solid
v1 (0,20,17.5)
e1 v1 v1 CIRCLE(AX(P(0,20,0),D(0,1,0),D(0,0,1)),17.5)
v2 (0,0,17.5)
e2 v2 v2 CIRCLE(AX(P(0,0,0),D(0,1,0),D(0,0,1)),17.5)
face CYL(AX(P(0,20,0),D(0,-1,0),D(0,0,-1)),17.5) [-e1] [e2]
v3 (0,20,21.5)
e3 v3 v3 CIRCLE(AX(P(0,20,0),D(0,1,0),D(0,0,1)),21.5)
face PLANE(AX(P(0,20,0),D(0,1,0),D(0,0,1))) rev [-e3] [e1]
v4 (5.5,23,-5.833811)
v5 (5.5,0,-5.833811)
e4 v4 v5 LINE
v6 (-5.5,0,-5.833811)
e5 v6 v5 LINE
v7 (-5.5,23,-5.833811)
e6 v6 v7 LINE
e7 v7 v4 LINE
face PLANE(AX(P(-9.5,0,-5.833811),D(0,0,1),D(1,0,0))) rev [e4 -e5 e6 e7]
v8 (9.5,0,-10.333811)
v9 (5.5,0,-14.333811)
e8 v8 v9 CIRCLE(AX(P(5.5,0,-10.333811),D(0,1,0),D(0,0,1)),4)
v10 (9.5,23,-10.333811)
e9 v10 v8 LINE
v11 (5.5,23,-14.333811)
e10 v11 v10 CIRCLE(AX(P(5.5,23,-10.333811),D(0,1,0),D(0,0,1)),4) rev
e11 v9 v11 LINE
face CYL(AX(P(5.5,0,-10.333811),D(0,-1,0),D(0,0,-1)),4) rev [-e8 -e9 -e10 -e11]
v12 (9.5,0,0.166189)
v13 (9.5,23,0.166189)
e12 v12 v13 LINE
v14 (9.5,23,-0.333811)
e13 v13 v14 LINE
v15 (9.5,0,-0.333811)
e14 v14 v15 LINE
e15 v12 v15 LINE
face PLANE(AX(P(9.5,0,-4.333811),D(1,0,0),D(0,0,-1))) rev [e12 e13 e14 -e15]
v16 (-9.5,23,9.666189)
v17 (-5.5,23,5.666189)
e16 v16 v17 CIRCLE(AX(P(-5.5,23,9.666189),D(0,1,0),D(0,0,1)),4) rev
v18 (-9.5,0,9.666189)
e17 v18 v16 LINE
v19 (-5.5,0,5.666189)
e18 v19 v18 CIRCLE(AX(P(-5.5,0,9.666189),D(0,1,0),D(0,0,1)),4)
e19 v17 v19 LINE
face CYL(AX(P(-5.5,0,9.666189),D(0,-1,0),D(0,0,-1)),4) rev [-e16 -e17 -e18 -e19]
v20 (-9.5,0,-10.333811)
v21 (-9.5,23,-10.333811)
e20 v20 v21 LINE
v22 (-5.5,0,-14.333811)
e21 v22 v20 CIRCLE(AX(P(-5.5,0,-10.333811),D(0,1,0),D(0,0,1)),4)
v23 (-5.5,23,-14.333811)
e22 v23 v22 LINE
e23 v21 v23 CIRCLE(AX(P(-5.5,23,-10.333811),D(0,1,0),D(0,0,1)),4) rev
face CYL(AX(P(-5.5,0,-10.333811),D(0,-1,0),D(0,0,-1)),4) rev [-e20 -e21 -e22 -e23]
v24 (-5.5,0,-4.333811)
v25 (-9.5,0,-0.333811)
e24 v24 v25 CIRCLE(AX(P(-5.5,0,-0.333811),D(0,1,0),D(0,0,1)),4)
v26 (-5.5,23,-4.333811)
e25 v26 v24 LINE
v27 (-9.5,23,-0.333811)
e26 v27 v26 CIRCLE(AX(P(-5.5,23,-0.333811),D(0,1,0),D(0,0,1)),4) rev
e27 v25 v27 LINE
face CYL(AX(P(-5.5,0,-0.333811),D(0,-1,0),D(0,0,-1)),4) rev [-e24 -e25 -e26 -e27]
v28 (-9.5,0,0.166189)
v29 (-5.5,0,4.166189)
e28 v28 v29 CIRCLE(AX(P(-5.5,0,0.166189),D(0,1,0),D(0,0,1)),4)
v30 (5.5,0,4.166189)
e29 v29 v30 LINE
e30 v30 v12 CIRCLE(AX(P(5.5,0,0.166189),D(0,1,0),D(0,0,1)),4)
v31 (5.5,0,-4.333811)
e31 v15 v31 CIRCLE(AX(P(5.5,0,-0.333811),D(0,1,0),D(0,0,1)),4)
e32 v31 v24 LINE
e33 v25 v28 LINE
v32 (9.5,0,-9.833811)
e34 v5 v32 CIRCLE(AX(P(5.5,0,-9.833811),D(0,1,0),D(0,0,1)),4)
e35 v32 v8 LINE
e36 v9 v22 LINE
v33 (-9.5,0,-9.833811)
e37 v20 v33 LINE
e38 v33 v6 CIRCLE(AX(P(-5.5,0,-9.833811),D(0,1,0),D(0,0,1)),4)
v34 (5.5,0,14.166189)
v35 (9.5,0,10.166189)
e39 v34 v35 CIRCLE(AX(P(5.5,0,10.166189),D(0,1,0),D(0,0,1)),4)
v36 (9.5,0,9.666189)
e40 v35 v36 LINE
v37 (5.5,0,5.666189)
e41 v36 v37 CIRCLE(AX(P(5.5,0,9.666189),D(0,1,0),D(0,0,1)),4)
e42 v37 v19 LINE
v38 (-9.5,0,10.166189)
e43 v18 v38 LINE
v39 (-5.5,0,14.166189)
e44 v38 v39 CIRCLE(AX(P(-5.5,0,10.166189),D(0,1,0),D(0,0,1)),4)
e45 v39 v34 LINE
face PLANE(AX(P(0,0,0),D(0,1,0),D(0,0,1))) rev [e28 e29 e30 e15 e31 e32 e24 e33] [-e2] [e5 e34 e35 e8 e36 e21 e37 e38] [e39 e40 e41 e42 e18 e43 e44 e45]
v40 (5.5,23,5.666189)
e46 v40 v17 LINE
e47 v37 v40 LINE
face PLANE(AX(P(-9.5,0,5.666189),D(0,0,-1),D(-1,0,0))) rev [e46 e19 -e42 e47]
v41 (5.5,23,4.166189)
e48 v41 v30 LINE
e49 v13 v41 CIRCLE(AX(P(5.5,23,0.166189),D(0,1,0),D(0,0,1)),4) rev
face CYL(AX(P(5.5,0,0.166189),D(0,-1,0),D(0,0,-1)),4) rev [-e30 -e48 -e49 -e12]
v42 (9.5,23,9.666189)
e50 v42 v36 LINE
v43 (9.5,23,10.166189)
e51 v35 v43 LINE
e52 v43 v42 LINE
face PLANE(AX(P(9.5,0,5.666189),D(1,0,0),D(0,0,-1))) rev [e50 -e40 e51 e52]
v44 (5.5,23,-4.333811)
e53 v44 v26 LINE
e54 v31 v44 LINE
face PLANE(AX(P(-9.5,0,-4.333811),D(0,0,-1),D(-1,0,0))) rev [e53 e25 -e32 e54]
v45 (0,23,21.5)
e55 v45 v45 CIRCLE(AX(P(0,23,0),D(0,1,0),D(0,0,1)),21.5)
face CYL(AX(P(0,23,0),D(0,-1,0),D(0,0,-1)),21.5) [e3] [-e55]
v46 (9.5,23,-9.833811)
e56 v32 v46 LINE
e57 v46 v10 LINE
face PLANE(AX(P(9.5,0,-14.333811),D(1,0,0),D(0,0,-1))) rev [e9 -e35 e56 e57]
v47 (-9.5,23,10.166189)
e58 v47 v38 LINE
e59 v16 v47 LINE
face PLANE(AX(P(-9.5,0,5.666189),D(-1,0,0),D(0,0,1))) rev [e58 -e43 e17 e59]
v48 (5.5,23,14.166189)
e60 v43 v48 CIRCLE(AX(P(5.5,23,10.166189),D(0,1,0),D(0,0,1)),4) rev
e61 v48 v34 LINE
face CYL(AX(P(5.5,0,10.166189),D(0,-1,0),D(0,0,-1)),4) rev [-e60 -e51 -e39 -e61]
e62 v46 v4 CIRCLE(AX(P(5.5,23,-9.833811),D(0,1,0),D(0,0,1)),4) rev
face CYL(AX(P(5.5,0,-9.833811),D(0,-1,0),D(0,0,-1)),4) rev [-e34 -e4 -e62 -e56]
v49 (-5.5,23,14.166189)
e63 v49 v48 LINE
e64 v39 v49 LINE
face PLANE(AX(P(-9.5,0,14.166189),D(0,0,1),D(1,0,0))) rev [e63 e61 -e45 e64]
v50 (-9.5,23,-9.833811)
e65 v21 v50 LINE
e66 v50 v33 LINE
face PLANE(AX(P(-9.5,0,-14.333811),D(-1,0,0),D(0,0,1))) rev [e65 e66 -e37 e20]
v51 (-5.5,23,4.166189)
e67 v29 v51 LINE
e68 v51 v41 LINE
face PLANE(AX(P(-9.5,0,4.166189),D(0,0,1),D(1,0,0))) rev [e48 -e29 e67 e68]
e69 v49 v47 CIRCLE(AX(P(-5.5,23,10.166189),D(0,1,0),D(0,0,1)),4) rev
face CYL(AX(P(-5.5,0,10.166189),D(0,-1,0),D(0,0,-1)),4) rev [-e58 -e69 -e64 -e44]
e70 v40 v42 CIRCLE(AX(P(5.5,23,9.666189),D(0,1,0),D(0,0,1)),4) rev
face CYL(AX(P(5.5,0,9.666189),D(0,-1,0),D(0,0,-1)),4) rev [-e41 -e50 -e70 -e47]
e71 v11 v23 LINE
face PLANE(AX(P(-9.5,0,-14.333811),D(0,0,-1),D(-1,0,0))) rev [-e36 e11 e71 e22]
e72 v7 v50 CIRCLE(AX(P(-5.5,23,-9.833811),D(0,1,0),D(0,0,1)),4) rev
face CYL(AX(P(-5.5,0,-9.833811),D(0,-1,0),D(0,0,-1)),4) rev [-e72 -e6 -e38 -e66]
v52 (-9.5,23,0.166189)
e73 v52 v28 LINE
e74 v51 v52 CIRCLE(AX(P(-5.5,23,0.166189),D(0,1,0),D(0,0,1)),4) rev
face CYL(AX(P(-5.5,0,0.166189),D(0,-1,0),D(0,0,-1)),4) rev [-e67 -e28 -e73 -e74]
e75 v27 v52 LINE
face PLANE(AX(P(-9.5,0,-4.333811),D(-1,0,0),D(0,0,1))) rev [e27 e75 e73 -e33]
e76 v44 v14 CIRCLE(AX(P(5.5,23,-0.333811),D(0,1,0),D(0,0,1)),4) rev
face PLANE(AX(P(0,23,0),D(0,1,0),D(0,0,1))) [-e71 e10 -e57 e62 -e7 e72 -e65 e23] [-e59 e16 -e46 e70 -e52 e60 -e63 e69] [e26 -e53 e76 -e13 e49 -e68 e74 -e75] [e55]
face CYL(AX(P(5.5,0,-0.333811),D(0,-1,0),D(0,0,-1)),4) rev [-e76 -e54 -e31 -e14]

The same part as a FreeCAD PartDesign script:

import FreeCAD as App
import Part
import Sketcher
from FreeCAD import Vector
Q = App.Units.Quantity


def edges_at(feature, points):
    """Names of the edges that pass closest to the given points."""
    edges = feature.Shape.Edges
    near = lambda p: min(range(len(edges)), key=lambda i: edges[i].distToShape(Part.Vertex(*p))[0])
    return sorted({f"Edge{near(p) + 1}" for p in points})

doc = App.newDocument("Part")
body = doc.addObject("PartDesign::Body", "Body")

sketch1 = body.newObject("Sketcher::SketchObject", "Sketch")
sketch1.AttachmentSupport = (doc.getObject("XZ_Plane"), [""])
sketch1.MapMode = "FlatFace"
sketch1.addGeometry(Part.Circle(Vector(0, 0, 0), Vector(0, 0, 1), 18), False)
sketch1.addConstraint([
    Sketcher.Constraint("Coincident", 0, 3, -1, 1),
    Sketcher.Constraint("Diameter", 0, Q("35 mm")),
])
pad1 = body.newObject("PartDesign::Pad", "Pad")
pad1.Profile = sketch1
pad1.Length = 20
pad1.Reversed = True

sketch2 = body.newObject("Sketcher::SketchObject", "Sketch001")
sketch2.AttachmentSupport = (doc.getObject("XZ_Plane"), [""])
sketch2.MapMode = "FlatFace"
sketch2.AttachmentOffset = App.Placement(Vector(0, 0, -20), App.Rotation())
sketch2.addGeometry(Part.Circle(Vector(0, 0, 0), Vector(0, 0, 1), 22), False)
sketch2.addConstraint([
    Sketcher.Constraint("Coincident", 0, 3, -1, 1),
    Sketcher.Constraint("Diameter", 0, Q("43 mm")),
])
pad2 = body.newObject("PartDesign::Pad", "Pad001")
pad2.Profile = sketch2
pad2.Length = 3
pad2.Reversed = True

sketch3 = body.newObject("Sketcher::SketchObject", "Sketch002")
sketch3.AttachmentSupport = (doc.getObject("XZ_Plane"), [""])
sketch3.MapMode = "FlatFace"
sketch3.AttachmentOffset = App.Placement(Vector(0, 0, -23), App.Rotation())
sketch3.addGeometry([
    Part.LineSegment(Vector(-10, -4, 0), Vector(-10, 4, 0)),
    Part.LineSegment(Vector(-10, 4, 0), Vector(10, 4, 0)),
    Part.LineSegment(Vector(10, 4, 0), Vector(10, -4, 0)),
    Part.LineSegment(Vector(10, -4, 0), Vector(-10, -4, 0)),
    Part.LineSegment(Vector(-10, -14, 0), Vector(-10, -6, 0)),
    Part.LineSegment(Vector(-10, -6, 0), Vector(10, -6, 0)),
    Part.LineSegment(Vector(10, -6, 0), Vector(10, -14, 0)),
    Part.LineSegment(Vector(10, -14, 0), Vector(-10, -14, 0)),
    Part.LineSegment(Vector(-10, 6, 0), Vector(-10, 14, 0)),
    Part.LineSegment(Vector(-10, 14, 0), Vector(10, 14, 0)),
    Part.LineSegment(Vector(10, 14, 0), Vector(10, 6, 0)),
    Part.LineSegment(Vector(10, 6, 0), Vector(-10, 6, 0)),
], False)
sketch3.addConstraint([
    Sketcher.Constraint("Coincident", 0, 2, 1, 1),
    Sketcher.Constraint("Coincident", 1, 2, 2, 1),
    Sketcher.Constraint("Coincident", 2, 2, 3, 1),
    Sketcher.Constraint("Coincident", 3, 2, 0, 1),
    Sketcher.Constraint("Coincident", 4, 2, 5, 1),
    Sketcher.Constraint("Coincident", 5, 2, 6, 1),
    Sketcher.Constraint("Coincident", 6, 2, 7, 1),
    Sketcher.Constraint("Coincident", 7, 2, 4, 1),
    Sketcher.Constraint("Coincident", 8, 2, 9, 1),
    Sketcher.Constraint("Coincident", 9, 2, 10, 1),
    Sketcher.Constraint("Coincident", 10, 2, 11, 1),
    Sketcher.Constraint("Coincident", 11, 2, 8, 1),
    Sketcher.Constraint("Vertical", 0),
    Sketcher.Constraint("Horizontal", 1),
    Sketcher.Constraint("Vertical", 2),
    Sketcher.Constraint("Horizontal", 3),
    Sketcher.Constraint("Vertical", 4),
    Sketcher.Constraint("Horizontal", 5),
    Sketcher.Constraint("Vertical", 6),
    Sketcher.Constraint("Horizontal", 7),
    Sketcher.Constraint("Vertical", 8),
    Sketcher.Constraint("Horizontal", 9),
    Sketcher.Constraint("Vertical", 10),
    Sketcher.Constraint("Horizontal", 11),
    Sketcher.Constraint("Vertical", 3, 2, 4, 2),
    Sketcher.Constraint("Vertical", 2, 2, 5, 2),
    Sketcher.Constraint("Vertical", 7, 2, 8, 2),
    Sketcher.Constraint("Vertical", 6, 2, 9, 2),
    Sketcher.Constraint("Equal", 2, 4),
    Sketcher.Constraint("Equal", 6, 8),
    Sketcher.Constraint("DistanceX", 1, 1, 1, 2, Q("19 mm")),
    Sketcher.Constraint("DistanceY", 0, 1, 0, 2, Q("8.5 mm")),
    Sketcher.Constraint("DistanceY", 4, 2, 0, 2, Q("10 mm")),
    Sketcher.Constraint("DistanceY", 0, 2, 8, 2, Q("10 mm")),
    Sketcher.Constraint("DistanceX", 0, 2, -1, 1, Q("9.5 mm")),
    Sketcher.Constraint("DistanceY", -1, 1, 0, 2, Q("4.166189 mm")),
])
pocket1 = body.newObject("PartDesign::Pocket", "Pocket")
pocket1.Profile = sketch3
pocket1.Length = 23
pocket1.Reversed = True
doc.recompute()

fillet = body.newObject("PartDesign::Fillet", "Fillet")
fillet.Base = (pocket1, edges_at(pocket1, [
    (9.5, 11.5, 4.166),
    (-9.5, 11.5, 4.166),
    (-9.5, 11.5, -4.334),
    (9.5, 11.5, -4.334),
    (9.5, 11.5, 14.166),
    (-9.5, 11.5, 14.166),
    (-9.5, 11.5, 5.666),
    (9.5, 11.5, 5.666),
]))
fillet.Radius = 4
doc.recompute()

fillet2 = body.newObject("PartDesign::Fillet", "Fillet001")
fillet2.Base = (fillet, edges_at(fillet, [
    (9.5, 11.5, -14.334),
    (9.5, 11.5, -5.834),
    (-9.5, 11.5, -5.834),
    (-9.5, 11.5, -14.334),
]))
fillet2.Radius = 4

doc.recompute()
